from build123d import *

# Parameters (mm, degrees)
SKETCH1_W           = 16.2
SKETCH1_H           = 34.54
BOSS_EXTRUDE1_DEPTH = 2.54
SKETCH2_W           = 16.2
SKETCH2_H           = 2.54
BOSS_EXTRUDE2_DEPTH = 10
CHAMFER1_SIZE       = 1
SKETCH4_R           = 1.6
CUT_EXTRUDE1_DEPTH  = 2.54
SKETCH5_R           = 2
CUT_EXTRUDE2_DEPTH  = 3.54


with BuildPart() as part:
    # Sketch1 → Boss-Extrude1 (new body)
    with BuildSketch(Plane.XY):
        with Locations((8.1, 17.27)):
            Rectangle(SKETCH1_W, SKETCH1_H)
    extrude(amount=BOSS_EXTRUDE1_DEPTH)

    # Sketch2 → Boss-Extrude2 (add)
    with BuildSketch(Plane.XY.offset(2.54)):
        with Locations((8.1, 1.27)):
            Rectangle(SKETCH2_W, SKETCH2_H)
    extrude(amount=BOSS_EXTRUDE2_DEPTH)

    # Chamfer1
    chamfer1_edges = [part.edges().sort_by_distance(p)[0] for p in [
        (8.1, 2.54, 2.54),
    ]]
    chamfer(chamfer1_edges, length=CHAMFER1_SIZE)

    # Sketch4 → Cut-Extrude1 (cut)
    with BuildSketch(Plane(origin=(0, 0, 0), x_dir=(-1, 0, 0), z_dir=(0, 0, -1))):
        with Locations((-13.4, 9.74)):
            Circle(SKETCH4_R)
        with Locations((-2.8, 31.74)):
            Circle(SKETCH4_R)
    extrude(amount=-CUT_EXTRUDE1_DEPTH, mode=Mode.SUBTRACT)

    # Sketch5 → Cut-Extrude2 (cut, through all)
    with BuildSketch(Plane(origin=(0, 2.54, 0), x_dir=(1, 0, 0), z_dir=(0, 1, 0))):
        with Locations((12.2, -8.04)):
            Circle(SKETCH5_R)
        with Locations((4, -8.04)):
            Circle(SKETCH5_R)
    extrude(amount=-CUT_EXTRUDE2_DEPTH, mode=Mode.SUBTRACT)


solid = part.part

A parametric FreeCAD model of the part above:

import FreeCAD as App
import Part
import Sketcher
from FreeCAD import Vector


def edges_at(feature, points):
    """Names of the edges that pass closest to the given points."""
    edges = feature.Shape.Edges
    near = lambda p: min(range(len(edges)), key=lambda i: edges[i].distToShape(Part.Vertex(*p))[0])
    return sorted({f"Edge{near(p) + 1}" for p in points})

doc = App.newDocument("Part")
body = doc.addObject("PartDesign::Body", "Body")

# Sketch on XY plane
sketch1 = body.newObject("Sketcher::SketchObject", "Sketch")
sketch1.AttachmentSupport = (doc.getObject("XY_Plane"), [""])
sketch1.MapMode = "FlatFace"
sketch1.addGeometry([
    Part.LineSegment(Vector(0, 34.54, 0), Vector(0, 0, 0)),
    Part.LineSegment(Vector(0, 0, 0), Vector(16.2, 0, 0)),
    Part.LineSegment(Vector(16.2, 0, 0), Vector(16.2, 34.54, 0)),
    Part.LineSegment(Vector(16.2, 34.54, 0), Vector(0, 34.54, 0)),
], False)
sketch1.addConstraint([
    Sketcher.Constraint("Coincident", 0, 2, 1, 1),
    Sketcher.Constraint("Coincident", 1, 2, 2, 1),
    Sketcher.Constraint("Coincident", 2, 2, 3, 1),
    Sketcher.Constraint("Coincident", 3, 2, 0, 1),
    Sketcher.Constraint("Vertical", 0),
    Sketcher.Constraint("Horizontal", 1),
    Sketcher.Constraint("Vertical", 2),
    Sketcher.Constraint("Horizontal", 3),
    Sketcher.Constraint("Coincident", 0, 2, -1, 1),
    Sketcher.Constraint("DistanceX", 1, 1, 1, 2, 16.2),
    Sketcher.Constraint("DistanceY", 0, 2, 0, 1, 34.54),
])
pad1 = body.newObject("PartDesign::Pad", "Pad")
pad1.Profile = sketch1
pad1.Length = 2.54

# Sketch on XY plane
sketch2 = body.newObject("Sketcher::SketchObject", "Sketch001")
sketch2.AttachmentSupport = (doc.getObject("XY_Plane"), [""])
sketch2.MapMode = "FlatFace"
sketch2.AttachmentOffset = App.Placement(Vector(0, 0, 2.54), App.Rotation())
sketch2.addGeometry([
    Part.LineSegment(Vector(0, 2.54, 0), Vector(0, 0, 0)),
    Part.LineSegment(Vector(0, 0, 0), Vector(16.2, 0, 0)),
    Part.LineSegment(Vector(16.2, 0, 0), Vector(16.2, 2.54, 0)),
    Part.LineSegment(Vector(16.2, 2.54, 0), Vector(0, 2.54, 0)),
], False)
sketch2.addConstraint([
    Sketcher.Constraint("Coincident", 0, 2, 1, 1),
    Sketcher.Constraint("Coincident", 1, 2, 2, 1),
    Sketcher.Constraint("Coincident", 2, 2, 3, 1),
    Sketcher.Constraint("Coincident", 3, 2, 0, 1),
    Sketcher.Constraint("Vertical", 0),
    Sketcher.Constraint("Horizontal", 1),
    Sketcher.Constraint("Vertical", 2),
    Sketcher.Constraint("Horizontal", 3),
    Sketcher.Constraint("Coincident", 0, 2, -1, 1),
    Sketcher.Constraint("DistanceX", 1, 1, 1, 2, 16.2),
    Sketcher.Constraint("DistanceY", 0, 2, 0, 1, 2.54),
])
pad2 = body.newObject("PartDesign::Pad", "Pad001")
pad2.Profile = sketch2
pad2.Length = 10
doc.recompute()

chamfer = body.newObject("PartDesign::Chamfer", "Chamfer")
chamfer.Base = (pad2, edges_at(pad2, [(8.1, 2.54, 2.54)]))
chamfer.Size = 1

# Sketch on XY plane
sketch3 = body.newObject("Sketcher::SketchObject", "Sketch002")
sketch3.AttachmentSupport = (doc.getObject("XY_Plane"), [""])
sketch3.MapMode = "FlatFace"
sketch3.addGeometry([
    Part.Circle(Vector(13.4, 9.74, 0), Vector(0, 0, 1), 1.6),
    Part.Circle(Vector(2.8, 31.74, 0), Vector(0, 0, 1), 1.6),
], False)
sketch3.addConstraint([
    Sketcher.Constraint("Equal", 0, 1),
    Sketcher.Constraint("Diameter", 0, 3.2),
    Sketcher.Constraint("DistanceY", 0, 3, 1, 3, 22.0),
    Sketcher.Constraint("DistanceX", -1, 1, 0, 3, 13.4),
    Sketcher.Constraint("DistanceX", -1, 1, 1, 3, 2.8),
    Sketcher.Constraint("DistanceY", -1, 1, 0, 3, 9.74),
])
pocket1 = body.newObject("PartDesign::Pocket", "Pocket")
pocket1.Profile = sketch3
pocket1.Length = 2.54
pocket1.Reversed = True

# Sketch on XZ plane
sketch4 = body.newObject("Sketcher::SketchObject", "Sketch003")
sketch4.AttachmentSupport = (doc.getObject("XZ_Plane"), [""])
sketch4.MapMode = "FlatFace"
sketch4.AttachmentOffset = App.Placement(Vector(0, 0, -2.54), App.Rotation())
sketch4.addGeometry([
    Part.Circle(Vector(12.2, 8.04, 0), Vector(0, 0, 1), 2),
    Part.Circle(Vector(4, 8.04, 0), Vector(0, 0, 1), 2),
], False)
sketch4.addConstraint([
    Sketcher.Constraint("Equal", 0, 1),
    Sketcher.Constraint("Horizontal", 0, 3, 1, 3),
    Sketcher.Constraint("Diameter", 0, 4.0),
    Sketcher.Constraint("DistanceX", -1, 1, 1, 3, 4.0),
    Sketcher.Constraint("DistanceX", -1, 1, 0, 3, 12.2),
    Sketcher.Constraint("DistanceY", -1, 1, 0, 3, 8.04),
])
pocket2 = body.newObject("PartDesign::Pocket", "Pocket001")
pocket2.Profile = sketch4
pocket2.Type = "ThroughAll"
pocket2.Reversed = True

doc.recompute()
